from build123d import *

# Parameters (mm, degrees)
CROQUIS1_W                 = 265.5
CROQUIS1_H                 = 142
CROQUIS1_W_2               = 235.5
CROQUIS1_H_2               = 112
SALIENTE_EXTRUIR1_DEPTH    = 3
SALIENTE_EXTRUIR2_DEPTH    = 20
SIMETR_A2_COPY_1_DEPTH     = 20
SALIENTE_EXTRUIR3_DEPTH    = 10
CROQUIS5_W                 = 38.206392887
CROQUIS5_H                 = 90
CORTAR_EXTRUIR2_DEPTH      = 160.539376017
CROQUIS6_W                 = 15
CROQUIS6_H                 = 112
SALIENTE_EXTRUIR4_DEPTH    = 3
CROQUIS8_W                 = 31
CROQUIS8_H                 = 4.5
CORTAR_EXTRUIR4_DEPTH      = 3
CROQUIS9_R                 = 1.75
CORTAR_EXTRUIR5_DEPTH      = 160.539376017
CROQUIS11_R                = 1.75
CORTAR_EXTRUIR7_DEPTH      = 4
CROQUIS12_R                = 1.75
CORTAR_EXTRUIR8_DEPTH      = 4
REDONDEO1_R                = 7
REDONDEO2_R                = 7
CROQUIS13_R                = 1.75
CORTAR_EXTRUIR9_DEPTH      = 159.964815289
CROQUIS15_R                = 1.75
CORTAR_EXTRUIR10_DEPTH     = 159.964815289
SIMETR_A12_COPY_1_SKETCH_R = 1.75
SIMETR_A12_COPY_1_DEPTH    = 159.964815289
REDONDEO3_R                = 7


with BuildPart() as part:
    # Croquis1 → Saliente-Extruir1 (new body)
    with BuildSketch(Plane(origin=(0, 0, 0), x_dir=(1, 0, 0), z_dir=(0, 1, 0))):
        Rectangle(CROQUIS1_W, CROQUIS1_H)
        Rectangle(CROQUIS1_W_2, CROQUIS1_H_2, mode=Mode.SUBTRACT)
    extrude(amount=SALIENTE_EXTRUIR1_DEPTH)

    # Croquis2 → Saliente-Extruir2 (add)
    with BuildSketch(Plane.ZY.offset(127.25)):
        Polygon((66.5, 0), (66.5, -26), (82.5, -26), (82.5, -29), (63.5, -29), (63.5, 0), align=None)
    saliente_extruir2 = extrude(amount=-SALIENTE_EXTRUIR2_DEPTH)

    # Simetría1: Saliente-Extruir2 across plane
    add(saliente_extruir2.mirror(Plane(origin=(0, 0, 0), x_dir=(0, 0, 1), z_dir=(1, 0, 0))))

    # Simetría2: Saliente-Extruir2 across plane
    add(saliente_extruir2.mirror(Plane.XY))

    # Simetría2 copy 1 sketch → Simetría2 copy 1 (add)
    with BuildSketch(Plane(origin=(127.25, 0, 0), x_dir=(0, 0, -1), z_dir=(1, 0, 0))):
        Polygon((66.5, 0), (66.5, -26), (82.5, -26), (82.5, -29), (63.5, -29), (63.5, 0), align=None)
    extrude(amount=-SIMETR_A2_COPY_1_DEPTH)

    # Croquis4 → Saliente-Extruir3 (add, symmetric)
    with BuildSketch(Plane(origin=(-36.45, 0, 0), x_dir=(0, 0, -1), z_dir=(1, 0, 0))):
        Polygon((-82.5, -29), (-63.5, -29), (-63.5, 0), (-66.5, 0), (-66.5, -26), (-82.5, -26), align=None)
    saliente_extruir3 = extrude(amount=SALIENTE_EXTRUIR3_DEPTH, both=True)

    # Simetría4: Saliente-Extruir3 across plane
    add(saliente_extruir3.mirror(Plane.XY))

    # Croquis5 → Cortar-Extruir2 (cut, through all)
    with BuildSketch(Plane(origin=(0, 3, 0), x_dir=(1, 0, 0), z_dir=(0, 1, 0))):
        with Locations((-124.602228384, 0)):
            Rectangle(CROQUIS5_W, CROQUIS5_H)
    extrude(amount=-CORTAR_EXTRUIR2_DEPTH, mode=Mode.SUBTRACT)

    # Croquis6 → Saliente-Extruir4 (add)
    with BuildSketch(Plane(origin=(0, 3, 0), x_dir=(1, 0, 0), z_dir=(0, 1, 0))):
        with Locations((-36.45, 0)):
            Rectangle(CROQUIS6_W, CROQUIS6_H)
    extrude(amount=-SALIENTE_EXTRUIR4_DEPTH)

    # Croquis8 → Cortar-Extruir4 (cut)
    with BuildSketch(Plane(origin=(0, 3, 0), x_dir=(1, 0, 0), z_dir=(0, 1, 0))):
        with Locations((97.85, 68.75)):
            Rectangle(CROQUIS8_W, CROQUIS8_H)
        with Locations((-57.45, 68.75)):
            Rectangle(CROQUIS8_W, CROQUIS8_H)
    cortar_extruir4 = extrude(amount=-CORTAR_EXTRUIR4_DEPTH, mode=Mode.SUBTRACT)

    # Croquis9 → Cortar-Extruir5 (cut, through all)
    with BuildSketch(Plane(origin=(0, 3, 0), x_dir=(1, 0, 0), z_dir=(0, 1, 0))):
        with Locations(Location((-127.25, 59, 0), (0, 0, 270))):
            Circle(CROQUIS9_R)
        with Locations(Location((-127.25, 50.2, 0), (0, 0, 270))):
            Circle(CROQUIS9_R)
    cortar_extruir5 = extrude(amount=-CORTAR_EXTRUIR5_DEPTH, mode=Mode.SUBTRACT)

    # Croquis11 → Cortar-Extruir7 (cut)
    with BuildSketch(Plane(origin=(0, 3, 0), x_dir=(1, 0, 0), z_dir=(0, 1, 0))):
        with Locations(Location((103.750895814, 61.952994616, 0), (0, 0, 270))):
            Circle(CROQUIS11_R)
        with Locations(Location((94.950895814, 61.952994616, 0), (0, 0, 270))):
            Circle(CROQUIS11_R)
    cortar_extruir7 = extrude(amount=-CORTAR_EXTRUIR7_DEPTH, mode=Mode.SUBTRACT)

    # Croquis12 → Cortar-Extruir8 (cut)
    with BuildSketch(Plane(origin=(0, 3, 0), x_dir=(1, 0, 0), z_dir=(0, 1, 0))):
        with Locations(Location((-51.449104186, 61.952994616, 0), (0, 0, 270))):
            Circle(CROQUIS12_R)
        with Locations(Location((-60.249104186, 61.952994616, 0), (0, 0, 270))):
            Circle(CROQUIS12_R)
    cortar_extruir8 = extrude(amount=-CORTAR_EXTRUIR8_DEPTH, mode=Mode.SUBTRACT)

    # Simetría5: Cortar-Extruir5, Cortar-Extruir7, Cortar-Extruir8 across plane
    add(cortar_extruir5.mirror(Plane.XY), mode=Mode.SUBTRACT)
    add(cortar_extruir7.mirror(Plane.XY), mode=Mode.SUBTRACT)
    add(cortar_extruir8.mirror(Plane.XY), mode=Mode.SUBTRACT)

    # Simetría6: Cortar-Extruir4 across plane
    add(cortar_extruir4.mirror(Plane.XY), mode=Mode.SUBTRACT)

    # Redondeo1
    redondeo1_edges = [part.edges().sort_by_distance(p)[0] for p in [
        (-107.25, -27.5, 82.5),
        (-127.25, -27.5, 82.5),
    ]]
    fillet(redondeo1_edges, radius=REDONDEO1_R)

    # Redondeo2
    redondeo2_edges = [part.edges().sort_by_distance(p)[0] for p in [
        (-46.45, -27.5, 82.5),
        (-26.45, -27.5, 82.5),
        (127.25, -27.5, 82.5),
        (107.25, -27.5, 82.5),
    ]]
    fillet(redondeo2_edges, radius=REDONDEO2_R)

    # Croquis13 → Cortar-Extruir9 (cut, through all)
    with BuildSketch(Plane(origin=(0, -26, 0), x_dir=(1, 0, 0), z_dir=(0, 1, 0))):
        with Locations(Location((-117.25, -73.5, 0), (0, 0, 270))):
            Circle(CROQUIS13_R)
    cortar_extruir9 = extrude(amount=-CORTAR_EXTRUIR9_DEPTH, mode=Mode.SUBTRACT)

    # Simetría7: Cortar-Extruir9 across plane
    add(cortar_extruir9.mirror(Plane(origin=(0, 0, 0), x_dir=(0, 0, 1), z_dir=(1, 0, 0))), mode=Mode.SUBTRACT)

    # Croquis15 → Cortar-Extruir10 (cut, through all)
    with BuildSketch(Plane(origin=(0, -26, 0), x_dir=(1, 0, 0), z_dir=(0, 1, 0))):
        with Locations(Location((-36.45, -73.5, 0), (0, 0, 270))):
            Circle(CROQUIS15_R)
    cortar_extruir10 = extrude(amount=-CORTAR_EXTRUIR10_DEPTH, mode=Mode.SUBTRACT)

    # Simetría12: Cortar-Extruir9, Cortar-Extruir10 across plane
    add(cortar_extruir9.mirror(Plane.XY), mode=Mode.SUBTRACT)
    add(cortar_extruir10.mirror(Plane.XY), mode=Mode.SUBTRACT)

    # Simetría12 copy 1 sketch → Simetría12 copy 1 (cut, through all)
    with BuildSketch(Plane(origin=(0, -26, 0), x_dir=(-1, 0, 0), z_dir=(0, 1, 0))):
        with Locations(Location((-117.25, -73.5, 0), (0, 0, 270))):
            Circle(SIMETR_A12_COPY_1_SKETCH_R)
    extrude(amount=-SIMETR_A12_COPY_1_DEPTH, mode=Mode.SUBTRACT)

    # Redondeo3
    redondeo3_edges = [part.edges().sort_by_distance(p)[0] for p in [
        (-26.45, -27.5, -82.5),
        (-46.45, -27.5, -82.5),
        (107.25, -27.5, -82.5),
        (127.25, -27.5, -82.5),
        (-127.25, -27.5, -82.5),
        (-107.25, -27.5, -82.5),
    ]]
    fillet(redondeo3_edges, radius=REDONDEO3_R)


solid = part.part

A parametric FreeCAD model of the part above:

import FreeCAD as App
import Part
import Sketcher


def edges_at(feature, points):
    """Names of the edges that pass closest to the given points."""
    edges = feature.Shape.Edges
    near = lambda p: min(range(len(edges)), key=lambda i: edges[i].distToShape(Part.Vertex(*p))[0])
    return sorted({f"Edge{near(p) + 1}" for p in points})


def add_polygon(sketch, points):
    """Adds a closed chain of lines whose ends are joined by coincident constraints."""
    first, n = sketch.GeometryCount, len(points)
    for a, b in zip(points, points[1:] + points[:1]):
        sketch.addGeometry(Part.LineSegment(App.Vector(*a, 0), App.Vector(*b, 0)), False)
    for i in range(n):
        sketch.addConstraint(Sketcher.Constraint("Coincident", first + i, 2, first + (i + 1) % n, 1))

doc = App.newDocument("Part")
body = doc.addObject("PartDesign::Body", "Body")

# Sketch on XZ plane
sketch1 = body.newObject("Sketcher::SketchObject", "Sketch")
sketch1.AttachmentSupport = (doc.getObject("XZ_Plane"), [""])
sketch1.MapMode = "FlatFace"
add_polygon(sketch1, [(-132.75, -71), (-132.75, 71), (132.75, 71), (132.75, -71)])  # lines 0-3
add_polygon(sketch1, [(117.75, 56), (-117.75, 56), (-117.75, -56), (117.75, -56)])  # lines 4-7
sketch1.addConstraint(Sketcher.Constraint("Vertical", 0))
sketch1.addConstraint(Sketcher.Constraint("Horizontal", 1))
sketch1.addConstraint(Sketcher.Constraint("Vertical", 2))
sketch1.addConstraint(Sketcher.Constraint("Horizontal", 3))
sketch1.addConstraint(Sketcher.Constraint("Horizontal", 4))
sketch1.addConstraint(Sketcher.Constraint("Vertical", 5))
sketch1.addConstraint(Sketcher.Constraint("Horizontal", 6))
sketch1.addConstraint(Sketcher.Constraint("Vertical", 7))
sketch1.addConstraint(Sketcher.Constraint("Symmetric", 0, 2, 2, 2, -1, 1))
sketch1.addConstraint(Sketcher.Constraint("Symmetric", 4, 2, 6, 2, -1, 1))
sketch1.addConstraint(Sketcher.Constraint("DistanceY", 0, 1, 0, 2, 142.0))
sketch1.addConstraint(Sketcher.Constraint("DistanceY", 5, 2, 5, 1, 112.0))
sketch1.addConstraint(Sketcher.Constraint("DistanceX", 1, 1, 1, 2, 265.5))
sketch1.addConstraint(Sketcher.Constraint("DistanceX", 4, 2, 4, 1, 235.5))
pad1 = body.newObject("PartDesign::Pad", "Pad")
pad1.Profile = sketch1
pad1.Length = 3
pad1.Reversed = True

# Sketch on YZ plane
sketch2 = body.newObject("Sketcher::SketchObject", "Sketch001")
sketch2.AttachmentSupport = (doc.getObject("YZ_Plane"), [""])
sketch2.MapMode = "FlatFace"
sketch2.AttachmentOffset = App.Placement(App.Vector(0, 0, -127.25), App.Rotation())
add_polygon(sketch2, [(-26, 66.5), (0, 66.5), (0, 63.5), (-29, 63.5), (-29, 82.5), (-26, 82.5)])  # lines 0-5
sketch2.addConstraint(Sketcher.Constraint("Horizontal", 0))
sketch2.addConstraint(Sketcher.Constraint("Vertical", 1))
sketch2.addConstraint(Sketcher.Constraint("Horizontal", 2))
sketch2.addConstraint(Sketcher.Constraint("Vertical", 3))
sketch2.addConstraint(Sketcher.Constraint("Horizontal", 4))
sketch2.addConstraint(Sketcher.Constraint("Vertical", 5))
sketch2.addConstraint(Sketcher.Constraint("PointOnObject", 0, 2, -2))
sketch2.addConstraint(Sketcher.Constraint("Equal", 4, 1))
sketch2.addConstraint(Sketcher.Constraint("DistanceX", 0, 1, 0, 2, 26.0))
sketch2.addConstraint(Sketcher.Constraint("DistanceX", 2, 2, 2, 1, 29.0))
sketch2.addConstraint(Sketcher.Constraint("DistanceY", 3, 1, 3, 2, 19.0))
sketch2.addConstraint(Sketcher.Constraint("DistanceY", -1, 1, 0, 2, 66.5))
pad2 = body.newObject("PartDesign::Pad", "Pad001")
pad2.Profile = sketch2
pad2.Length = 20
doc.recompute()

mirrored = body.newObject("PartDesign::Mirrored", "Mirrored")
mirrored.Originals = [pad2]
mirrored.MirrorPlane = (doc.getObject("YZ_Plane"), [""])
body.Tip = mirrored
doc.recompute()

mirrored2 = body.newObject("PartDesign::Mirrored", "Mirrored001")
mirrored2.Originals = [pad2]
mirrored2.MirrorPlane = (doc.getObject("XY_Plane"), [""])
body.Tip = mirrored2

# Sketch on YZ plane
sketch3 = body.newObject("Sketcher::SketchObject", "Sketch002")
sketch3.AttachmentSupport = (doc.getObject("YZ_Plane"), [""])
sketch3.MapMode = "FlatFace"
sketch3.AttachmentOffset = App.Placement(App.Vector(0, 0, 127.25), App.Rotation())
add_polygon(sketch3, [(-26, -66.5), (0, -66.5), (0, -63.5), (-29, -63.5), (-29, -82.5), (-26, -82.5)])  # lines 0-5
sketch3.addConstraint(Sketcher.Constraint("Horizontal", 0))
sketch3.addConstraint(Sketcher.Constraint("Vertical", 1))
sketch3.addConstraint(Sketcher.Constraint("Horizontal", 2))
sketch3.addConstraint(Sketcher.Constraint("Vertical", 3))
sketch3.addConstraint(Sketcher.Constraint("Horizontal", 4))
sketch3.addConstraint(Sketcher.Constraint("Vertical", 5))
sketch3.addConstraint(Sketcher.Constraint("PointOnObject", 0, 2, -2))
sketch3.addConstraint(Sketcher.Constraint("Equal", 4, 1))
sketch3.addConstraint(Sketcher.Constraint("DistanceX", 0, 1, 0, 2, 26.0))
sketch3.addConstraint(Sketcher.Constraint("DistanceX", 2, 2, 2, 1, 29.0))
sketch3.addConstraint(Sketcher.Constraint("DistanceY", 3, 2, 3, 1, 19.0))
sketch3.addConstraint(Sketcher.Constraint("DistanceY", 0, 2, -1, 1, 66.5))
pad3 = body.newObject("PartDesign::Pad", "Pad002")
pad3.Profile = sketch3
pad3.Length = 20
pad3.Reversed = True

# Sketch on YZ plane
sketch4 = body.newObject("Sketcher::SketchObject", "Sketch003")
sketch4.AttachmentSupport = (doc.getObject("YZ_Plane"), [""])
sketch4.MapMode = "FlatFace"
sketch4.AttachmentOffset = App.Placement(App.Vector(0, 0, -36.45), App.Rotation())
add_polygon(sketch4, [(-29, 82.5), (-29, 63.5), (0, 63.5), (0, 66.5), (-26, 66.5), (-26, 82.5)])  # lines 0-5
sketch4.addConstraint(Sketcher.Constraint("Vertical", 0))
sketch4.addConstraint(Sketcher.Constraint("Horizontal", 1))
sketch4.addConstraint(Sketcher.Constraint("Vertical", 2))
sketch4.addConstraint(Sketcher.Constraint("Horizontal", 3))
sketch4.addConstraint(Sketcher.Constraint("Vertical", 4))
sketch4.addConstraint(Sketcher.Constraint("Horizontal", 5))
sketch4.addConstraint(Sketcher.Constraint("PointOnObject", 1, 2, -2))
sketch4.addConstraint(Sketcher.Constraint("Equal", 5, 2))
sketch4.addConstraint(Sketcher.Constraint("DistanceX", 1, 1, 1, 2, 29.0))
sketch4.addConstraint(Sketcher.Constraint("DistanceX", 3, 2, 3, 1, 26.0))
sketch4.addConstraint(Sketcher.Constraint("DistanceY", 0, 2, 0, 1, 19.0))
sketch4.addConstraint(Sketcher.Constraint("DistanceY", -1, 1, 0, 2, 63.5))
pad4 = body.newObject("PartDesign::Pad", "Pad003")
pad4.Profile = sketch4
pad4.Length = 20
pad4.Midplane = True
doc.recompute()

mirrored3 = body.newObject("PartDesign::Mirrored", "Mirrored002")
mirrored3.Originals = [pad4]
mirrored3.MirrorPlane = (doc.getObject("XY_Plane"), [""])
body.Tip = mirrored3

# Sketch on XZ plane
sketch5 = body.newObject("Sketcher::SketchObject", "Sketch004")
sketch5.AttachmentSupport = (doc.getObject("XZ_Plane"), [""])
sketch5.MapMode = "FlatFace"
sketch5.AttachmentOffset = App.Placement(App.Vector(0, 0, -3), App.Rotation())
add_polygon(sketch5, [(-143.705425, -45), (-143.705425, 45), (-105.499032, 45), (-105.499032, -45)])  # lines 0-3
sketch5.addConstraint(Sketcher.Constraint("Vertical", 0))
sketch5.addConstraint(Sketcher.Constraint("Horizontal", 1))
sketch5.addConstraint(Sketcher.Constraint("Vertical", 2))
sketch5.addConstraint(Sketcher.Constraint("Horizontal", 3))
sketch5.addConstraint(Sketcher.Constraint("DistanceY", 0, 1, 0, 2, 90.0))
sketch5.addConstraint(Sketcher.Constraint("DistanceY", -1, 1, 0, 2, 45.0))
sketch5.addConstraint(Sketcher.Constraint("DistanceX", 1, 1, 1, 2, 38.206393))
sketch5.addConstraint(Sketcher.Constraint("DistanceX", 1, 2, -1, 1, 105.499032))
pocket1 = body.newObject("PartDesign::Pocket", "Pocket")
pocket1.Profile = sketch5
pocket1.Type = "ThroughAll"
pocket1.Reversed = True

# Sketch on XZ plane
sketch6 = body.newObject("Sketcher::SketchObject", "Sketch005")
sketch6.AttachmentSupport = (doc.getObject("XZ_Plane"), [""])
sketch6.MapMode = "FlatFace"
sketch6.AttachmentOffset = App.Placement(App.Vector(0, 0, -3), App.Rotation())
add_polygon(sketch6, [(-43.95, -56), (-43.95, 56), (-28.95, 56), (-28.95, -56)])  # lines 0-3
sketch6.addConstraint(Sketcher.Constraint("Vertical", 0))
sketch6.addConstraint(Sketcher.Constraint("Horizontal", 1))
sketch6.addConstraint(Sketcher.Constraint("Vertical", 2))
sketch6.addConstraint(Sketcher.Constraint("Horizontal", 3))
sketch6.addConstraint(Sketcher.Constraint("DistanceX", 1, 1, 1, 2, 15.0))
sketch6.addConstraint(Sketcher.Constraint("DistanceY", 0, 1, 0, 2, 112.0))
sketch6.addConstraint(Sketcher.Constraint("DistanceY", -1, 1, 0, 2, 56.0))
sketch6.addConstraint(Sketcher.Constraint("DistanceX", 0, 2, -1, 1, 43.95))
pad5 = body.newObject("PartDesign::Pad", "Pad004")
pad5.Profile = sketch6
pad5.Length = 3

# Sketch on XZ plane
sketch7 = body.newObject("Sketcher::SketchObject", "Sketch006")
sketch7.AttachmentSupport = (doc.getObject("XZ_Plane"), [""])
sketch7.MapMode = "FlatFace"
sketch7.AttachmentOffset = App.Placement(App.Vector(0, 0, -3), App.Rotation())
add_polygon(sketch7, [(82.35, -71), (82.35, -66.5), (113.35, -66.5), (113.35, -71)])  # lines 0-3
add_polygon(sketch7, [(-72.95, -71), (-72.95, -66.5), (-41.95, -66.5), (-41.95, -71)])  # lines 4-7
sketch7.addConstraint(Sketcher.Constraint("Vertical", 0))
sketch7.addConstraint(Sketcher.Constraint("Horizontal", 1))
sketch7.addConstraint(Sketcher.Constraint("Vertical", 2))
sketch7.addConstraint(Sketcher.Constraint("Horizontal", 3))
sketch7.addConstraint(Sketcher.Constraint("Vertical", 4))
sketch7.addConstraint(Sketcher.Constraint("Horizontal", 5))
sketch7.addConstraint(Sketcher.Constraint("Vertical", 6))
sketch7.addConstraint(Sketcher.Constraint("Horizontal", 7))
sketch7.addConstraint(Sketcher.Constraint("Horizontal", 1, 2, 4, 2))
sketch7.addConstraint(Sketcher.Constraint("Horizontal", 3, 2, 6, 2))
sketch7.addConstraint(Sketcher.Constraint("Equal", 3, 5))
sketch7.addConstraint(Sketcher.Constraint("DistanceX", 1, 1, 1, 2, 31.0))
sketch7.addConstraint(Sketcher.Constraint("DistanceY", 0, 1, 0, 2, 4.5))
sketch7.addConstraint(Sketcher.Constraint("DistanceY", 2, 2, -1, 1, 71.0))
sketch7.addConstraint(Sketcher.Constraint("DistanceX", 4, 2, 0, 2, 155.3))
sketch7.addConstraint(Sketcher.Constraint("DistanceX", -1, 1, 0, 2, 82.35))
pocket2 = body.newObject("PartDesign::Pocket", "Pocket001")
pocket2.Profile = sketch7
pocket2.Length = 3
pocket2.Reversed = True

# Sketch on XZ plane
sketch8 = body.newObject("Sketcher::SketchObject", "Sketch007")
sketch8.AttachmentSupport = (doc.getObject("XZ_Plane"), [""])
sketch8.MapMode = "FlatFace"
sketch8.AttachmentOffset = App.Placement(App.Vector(0, 0, -3), App.Rotation())
sketch8.addGeometry(Part.Circle(App.Vector(-127.25, -59, 0), App.Vector(0, 0, 1), 1.75), False)
sketch8.addGeometry(Part.Circle(App.Vector(-127.25, -50.2, 0), App.Vector(0, 0, 1), 1.75), False)
sketch8.addConstraint(Sketcher.Constraint("Equal", 0, 1))
sketch8.addConstraint(Sketcher.Constraint("Vertical", 0, 3, 1, 3))
sketch8.addConstraint(Sketcher.Constraint("Diameter", 0, 3.5))
sketch8.addConstraint(Sketcher.Constraint("DistanceY", 0, 3, -1, 1, 59.0))
sketch8.addConstraint(Sketcher.Constraint("DistanceY", 1, 3, -1, 1, 50.2))
sketch8.addConstraint(Sketcher.Constraint("DistanceX", 0, 3, -1, 1, 127.25))
pocket3 = body.newObject("PartDesign::Pocket", "Pocket002")
pocket3.Profile = sketch8
pocket3.Type = "ThroughAll"
pocket3.Reversed = True

# Sketch on XZ plane
sketch9 = body.newObject("Sketcher::SketchObject", "Sketch008")
sketch9.AttachmentSupport = (doc.getObject("XZ_Plane"), [""])
sketch9.MapMode = "FlatFace"
sketch9.AttachmentOffset = App.Placement(App.Vector(0, 0, -3), App.Rotation())
sketch9.addGeometry(Part.Circle(App.Vector(103.750896, -61.952995, 0), App.Vector(0, 0, 1), 1.75), False)
sketch9.addGeometry(Part.Circle(App.Vector(94.950896, -61.952995, 0), App.Vector(0, 0, 1), 1.75), False)
sketch9.addConstraint(Sketcher.Constraint("Equal", 0, 1))
sketch9.addConstraint(Sketcher.Constraint("Horizontal", 0, 3, 1, 3))
sketch9.addConstraint(Sketcher.Constraint("Diameter", 0, 3.5))
sketch9.addConstraint(Sketcher.Constraint("DistanceX", 1, 3, 0, 3, 8.8))
sketch9.addConstraint(Sketcher.Constraint("DistanceX", -1, 1, 0, 3, 103.750896))
sketch9.addConstraint(Sketcher.Constraint("DistanceY", 0, 3, -1, 1, 61.952995))
pocket4 = body.newObject("PartDesign::Pocket", "Pocket003")
pocket4.Profile = sketch9
pocket4.Length = 4
pocket4.Reversed = True

# Sketch on XZ plane
sketch10 = body.newObject("Sketcher::SketchObject", "Sketch009")
sketch10.AttachmentSupport = (doc.getObject("XZ_Plane"), [""])
sketch10.MapMode = "FlatFace"
sketch10.AttachmentOffset = App.Placement(App.Vector(0, 0, -3), App.Rotation())
sketch10.addGeometry(Part.Circle(App.Vector(-51.449104, -61.952995, 0), App.Vector(0, 0, 1), 1.75), False)
sketch10.addGeometry(Part.Circle(App.Vector(-60.249104, -61.952995, 0), App.Vector(0, 0, 1), 1.75), False)
sketch10.addConstraint(Sketcher.Constraint("Equal", 0, 1))
sketch10.addConstraint(Sketcher.Constraint("Horizontal", 0, 3, 1, 3))
sketch10.addConstraint(Sketcher.Constraint("Diameter", 0, 3.5))
sketch10.addConstraint(Sketcher.Constraint("DistanceX", 1, 3, 0, 3, 8.8))
sketch10.addConstraint(Sketcher.Constraint("DistanceX", 0, 3, -1, 1, 51.449104))
sketch10.addConstraint(Sketcher.Constraint("DistanceY", 0, 3, -1, 1, 61.952995))
pocket5 = body.newObject("PartDesign::Pocket", "Pocket004")
pocket5.Profile = sketch10
pocket5.Length = 4
pocket5.Reversed = True
doc.recompute()

mirrored4 = body.newObject("PartDesign::Mirrored", "Mirrored003")
mirrored4.Originals = [pocket3, pocket4, pocket5]
mirrored4.MirrorPlane = (doc.getObject("XY_Plane"), [""])
body.Tip = mirrored4
doc.recompute()

mirrored5 = body.newObject("PartDesign::Mirrored", "Mirrored004")
mirrored5.Originals = [pocket2]
mirrored5.MirrorPlane = (doc.getObject("XY_Plane"), [""])
body.Tip = mirrored5
doc.recompute()

fillet = body.newObject("PartDesign::Fillet", "Fillet")
fillet.Base = (mirrored5, edges_at(mirrored5, [(-107.25, -27.5, 82.5), (-127.25, -27.5, 82.5)]))
fillet.Radius = 7
doc.recompute()

fillet2 = body.newObject("PartDesign::Fillet", "Fillet001")
fillet2.Base = (fillet, edges_at(fillet, [
    (-46.45, -27.5, 82.5),
    (-26.45, -27.5, 82.5),
    (127.25, -27.5, 82.5),
    (107.25, -27.5, 82.5),
]))
fillet2.Radius = 7

# Sketch on XZ plane
sketch11 = body.newObject("Sketcher::SketchObject", "Sketch010")
sketch11.AttachmentSupport = (doc.getObject("XZ_Plane"), [""])
sketch11.MapMode = "FlatFace"
sketch11.AttachmentOffset = App.Placement(App.Vector(0, 0, 26), App.Rotation())
sketch11.addGeometry(Part.Circle(App.Vector(-117.25, 73.5, 0), App.Vector(0, 0, 1), 1.75), False)
sketch11.addConstraint(Sketcher.Constraint("Diameter", 0, 3.5))
sketch11.addConstraint(Sketcher.Constraint("DistanceY", -1, 1, 0, 3, 73.5))
sketch11.addConstraint(Sketcher.Constraint("DistanceX", 0, 3, -1, 1, 117.25))
pocket6 = body.newObject("PartDesign::Pocket", "Pocket005")
pocket6.Profile = sketch11
pocket6.Type = "ThroughAll"
pocket6.Reversed = True
doc.recompute()

mirrored6 = body.newObject("PartDesign::Mirrored", "Mirrored005")
mirrored6.Originals = [pocket6]
mirrored6.MirrorPlane = (doc.getObject("YZ_Plane"), [""])
body.Tip = mirrored6

# Sketch on XZ plane
sketch12 = body.newObject("Sketcher::SketchObject", "Sketch011")
sketch12.AttachmentSupport = (doc.getObject("XZ_Plane"), [""])
sketch12.MapMode = "FlatFace"
sketch12.AttachmentOffset = App.Placement(App.Vector(0, 0, 26), App.Rotation())
sketch12.addGeometry(Part.Circle(App.Vector(-36.45, 73.5, 0), App.Vector(0, 0, 1), 1.75), False)
sketch12.addConstraint(Sketcher.Constraint("Diameter", 0, 3.5))
sketch12.addConstraint(Sketcher.Constraint("DistanceY", -1, 1, 0, 3, 73.5))
sketch12.addConstraint(Sketcher.Constraint("DistanceX", 0, 3, -1, 1, 36.45))
pocket7 = body.newObject("PartDesign::Pocket", "Pocket006")
pocket7.Profile = sketch12
pocket7.Type = "ThroughAll"
pocket7.Reversed = True
doc.recompute()

mirrored7 = body.newObject("PartDesign::Mirrored", "Mirrored006")
mirrored7.Originals = [pocket6, pocket7]
mirrored7.MirrorPlane = (doc.getObject("XY_Plane"), [""])
body.Tip = mirrored7

# Sketch on XZ plane
sketch13 = body.newObject("Sketcher::SketchObject", "Sketch012")
sketch13.AttachmentSupport = (doc.getObject("XZ_Plane"), [""])
sketch13.MapMode = "FlatFace"
sketch13.AttachmentOffset = App.Placement(App.Vector(0, 0, 26), App.Rotation())
sketch13.addGeometry(Part.Circle(App.Vector(117.25, -73.5, 0), App.Vector(0, 0, 1), 1.75), False)
sketch13.addConstraint(Sketcher.Constraint("Diameter", 0, 3.5))
sketch13.addConstraint(Sketcher.Constraint("DistanceY", 0, 3, -1, 1, 73.5))
sketch13.addConstraint(Sketcher.Constraint("DistanceX", -1, 1, 0, 3, 117.25))
pocket8 = body.newObject("PartDesign::Pocket", "Pocket007")
pocket8.Profile = sketch13
pocket8.Type = "ThroughAll"
pocket8.Reversed = True
doc.recompute()

fillet3 = body.newObject("PartDesign::Fillet", "Fillet002")
fillet3.Base = (pocket8, edges_at(pocket8, [
    (-26.45, -27.5, -82.5),
    (-46.45, -27.5, -82.5),
    (107.25, -27.5, -82.5),
    (127.25, -27.5, -82.5),
    (-127.25, -27.5, -82.5),
    (-107.25, -27.5, -82.5),
]))
fillet3.Radius = 7

doc.recompute()
